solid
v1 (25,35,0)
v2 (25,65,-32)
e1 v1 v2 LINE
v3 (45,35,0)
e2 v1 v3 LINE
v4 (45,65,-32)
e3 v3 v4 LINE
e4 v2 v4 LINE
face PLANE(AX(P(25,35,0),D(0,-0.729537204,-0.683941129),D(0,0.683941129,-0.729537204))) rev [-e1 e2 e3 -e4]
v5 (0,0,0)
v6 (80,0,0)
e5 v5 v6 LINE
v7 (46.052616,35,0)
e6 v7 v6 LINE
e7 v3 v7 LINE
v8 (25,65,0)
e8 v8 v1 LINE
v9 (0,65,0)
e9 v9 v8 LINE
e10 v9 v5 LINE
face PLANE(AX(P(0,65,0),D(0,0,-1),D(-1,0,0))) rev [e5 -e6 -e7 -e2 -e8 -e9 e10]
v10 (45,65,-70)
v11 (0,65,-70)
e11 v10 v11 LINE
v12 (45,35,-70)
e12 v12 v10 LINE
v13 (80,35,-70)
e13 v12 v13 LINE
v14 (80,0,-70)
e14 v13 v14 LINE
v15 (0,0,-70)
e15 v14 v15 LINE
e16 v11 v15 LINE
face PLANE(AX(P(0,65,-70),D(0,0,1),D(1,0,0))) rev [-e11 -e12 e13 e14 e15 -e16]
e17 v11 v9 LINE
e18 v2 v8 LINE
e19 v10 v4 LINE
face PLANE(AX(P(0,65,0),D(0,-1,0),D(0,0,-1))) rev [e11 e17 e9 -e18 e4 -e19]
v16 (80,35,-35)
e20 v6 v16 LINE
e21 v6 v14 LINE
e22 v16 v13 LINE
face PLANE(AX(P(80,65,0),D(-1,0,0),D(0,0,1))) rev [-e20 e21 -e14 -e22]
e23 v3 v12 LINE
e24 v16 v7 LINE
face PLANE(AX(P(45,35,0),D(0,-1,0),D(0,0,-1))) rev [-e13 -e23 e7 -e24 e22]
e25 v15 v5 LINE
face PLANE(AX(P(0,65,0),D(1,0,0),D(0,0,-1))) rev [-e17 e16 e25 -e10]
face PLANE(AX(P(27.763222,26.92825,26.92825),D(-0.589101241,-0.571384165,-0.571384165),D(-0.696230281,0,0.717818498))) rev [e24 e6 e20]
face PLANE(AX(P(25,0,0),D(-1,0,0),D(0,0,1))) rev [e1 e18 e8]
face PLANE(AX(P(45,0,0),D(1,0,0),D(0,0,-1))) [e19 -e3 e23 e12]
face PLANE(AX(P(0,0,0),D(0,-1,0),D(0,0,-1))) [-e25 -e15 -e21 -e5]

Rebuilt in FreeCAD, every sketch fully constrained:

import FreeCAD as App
import Part
import Sketcher


def add_polygon(sketch, points):
    """Adds a closed chain of lines whose ends are joined by coincident constraints."""
    first, n = sketch.GeometryCount, len(points)
    for a, b in zip(points, points[1:] + points[:1]):
        sketch.addGeometry(Part.LineSegment(App.Vector(*a, 0), App.Vector(*b, 0)), False)
    for i in range(n):
        sketch.addConstraint(Sketcher.Constraint("Coincident", first + i, 2, first + (i + 1) % n, 1))

doc = App.newDocument("Part")
body = doc.addObject("PartDesign::Body", "Body")

# Sketch on XZ plane
sketch1 = body.newObject("Sketcher::SketchObject", "Sketch")
sketch1.AttachmentSupport = (doc.getObject("XZ_Plane"), [""])
sketch1.MapMode = "FlatFace"
add_polygon(sketch1, [(0, -70), (0, 0), (80, 0), (80, -70)])  # lines 0-3
sketch1.addConstraint(Sketcher.Constraint("Vertical", 0))
sketch1.addConstraint(Sketcher.Constraint("Horizontal", 1))
sketch1.addConstraint(Sketcher.Constraint("Vertical", 2))
sketch1.addConstraint(Sketcher.Constraint("Horizontal", 3))
sketch1.addConstraint(Sketcher.Constraint("Coincident", 0, 2, -1, 1))
sketch1.addConstraint(Sketcher.Constraint("DistanceX", 1, 1, 1, 2, 80.0))
sketch1.addConstraint(Sketcher.Constraint("DistanceY", 0, 1, 0, 2, 70.0))
pad1 = body.newObject("PartDesign::Pad", "Pad")
pad1.Profile = sketch1
pad1.Length = 65
pad1.Reversed = True

# Sketch on YZ plane
sketch2 = body.newObject("Sketcher::SketchObject", "Sketch001")
sketch2.AttachmentSupport = (doc.getObject("YZ_Plane"), [""])
sketch2.MapMode = "FlatFace"
sketch2.AttachmentOffset = App.Placement(App.Vector(0, 0, 80), App.Rotation())
add_polygon(sketch2, [(65, 0), (35, 0), (35, -70), (65, -70)])  # lines 0-3
sketch2.addConstraint(Sketcher.Constraint("Horizontal", 0))
sketch2.addConstraint(Sketcher.Constraint("Vertical", 1))
sketch2.addConstraint(Sketcher.Constraint("Horizontal", 2))
sketch2.addConstraint(Sketcher.Constraint("Vertical", 3))
sketch2.addConstraint(Sketcher.Constraint("PointOnObject", 0, 2, -1))
sketch2.addConstraint(Sketcher.Constraint("DistanceX", 0, 2, 0, 1, 30.0))
sketch2.addConstraint(Sketcher.Constraint("DistanceY", 1, 2, 1, 1, 70.0))
sketch2.addConstraint(Sketcher.Constraint("DistanceX", -1, 1, 0, 2, 35.0))
pocket1 = body.newObject("PartDesign::Pocket", "Pocket")
pocket1.Profile = sketch2
pocket1.Length = 35

# Sketch on YZ plane
sketch3 = body.newObject("Sketcher::SketchObject", "Sketch002")
sketch3.AttachmentSupport = (doc.getObject("YZ_Plane"), [""])
sketch3.MapMode = "FlatFace"
sketch3.AttachmentOffset = App.Placement(App.Vector(0, 0, 45), App.Rotation())
add_polygon(sketch3, [(35, 0), (65, -32), (65, 0)])  # lines 0-2
sketch3.addConstraint(Sketcher.Constraint("Vertical", 1))
sketch3.addConstraint(Sketcher.Constraint("Horizontal", 2))
sketch3.addConstraint(Sketcher.Constraint("PointOnObject", 1, 2, -1))
sketch3.addConstraint(Sketcher.Constraint("DistanceX", 2, 2, 2, 1, 30.0))
sketch3.addConstraint(Sketcher.Constraint("DistanceY", 1, 1, 1, 2, 32.0))
sketch3.addConstraint(Sketcher.Constraint("DistanceX", -1, 1, 0, 2, 65.0))
pocket2 = body.newObject("PartDesign::Pocket", "Pocket001")
pocket2.Profile = sketch3
pocket2.Length = 20

# Sketch on an angled plane
sketch4 = body.newObject("Sketcher::SketchObject", "Sketch003")
sketch4.Placement = App.Placement(App.Vector(27.763222, 26.92825, 26.92825), App.Rotation(App.Vector(0.410150123, 0.397814958, -0.820682726), App.Vector(-0.696230282, 0.717818498, 0), App.Vector(0.589101241, 0.571384165, 0.571384165), "ZXY"))
add_polygon(sketch4, [(32.81201, -55.698423), (75.459429, -30.574775), (32.81201, -6.939579)])  # lines 0-2
sketch4.addConstraint(Sketcher.Constraint("Vertical", 2))
sketch4.addConstraint(Sketcher.Constraint("DistanceY", 2, 2, 2, 1, 48.758844))
sketch4.addConstraint(Sketcher.Constraint("DistanceX", -1, 1, 0, 2, 75.459429))
sketch4.addConstraint(Sketcher.Constraint("DistanceX", -1, 1, 1, 2, 32.81201))
sketch4.addConstraint(Sketcher.Constraint("DistanceY", 1, 2, -1, 1, 6.939579))
sketch4.addConstraint(Sketcher.Constraint("Distance", 0, 49.497475))
pocket3 = body.newObject("PartDesign::Pocket", "Pocket002")
pocket3.Profile = sketch4
pocket3.Length = 20
pocket3.Reversed = True

doc.recompute()
